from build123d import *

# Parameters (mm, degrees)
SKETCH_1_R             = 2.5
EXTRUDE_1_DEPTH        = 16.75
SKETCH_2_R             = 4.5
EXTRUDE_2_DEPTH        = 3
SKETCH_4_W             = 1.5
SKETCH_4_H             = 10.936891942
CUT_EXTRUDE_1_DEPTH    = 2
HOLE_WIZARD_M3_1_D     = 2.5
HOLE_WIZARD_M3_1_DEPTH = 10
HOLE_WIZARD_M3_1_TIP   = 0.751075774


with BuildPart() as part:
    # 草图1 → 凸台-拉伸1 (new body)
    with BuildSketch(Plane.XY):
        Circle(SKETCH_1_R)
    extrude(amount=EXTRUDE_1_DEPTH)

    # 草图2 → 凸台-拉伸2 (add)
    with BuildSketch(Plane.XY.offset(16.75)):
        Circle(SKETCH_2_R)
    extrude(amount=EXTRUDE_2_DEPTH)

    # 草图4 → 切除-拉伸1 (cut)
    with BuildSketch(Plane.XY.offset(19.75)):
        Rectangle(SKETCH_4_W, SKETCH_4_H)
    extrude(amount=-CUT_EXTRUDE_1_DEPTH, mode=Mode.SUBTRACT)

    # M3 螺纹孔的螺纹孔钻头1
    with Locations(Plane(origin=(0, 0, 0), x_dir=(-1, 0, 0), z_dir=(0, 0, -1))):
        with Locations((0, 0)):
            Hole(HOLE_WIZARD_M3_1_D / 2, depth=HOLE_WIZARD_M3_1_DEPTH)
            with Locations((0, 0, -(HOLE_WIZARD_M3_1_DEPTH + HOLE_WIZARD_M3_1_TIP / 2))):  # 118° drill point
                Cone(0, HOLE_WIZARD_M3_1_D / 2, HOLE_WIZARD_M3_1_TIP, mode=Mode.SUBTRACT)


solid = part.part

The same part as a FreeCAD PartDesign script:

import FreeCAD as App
import Part
import Sketcher
from FreeCAD import Vector
Q = App.Units.Quantity

doc = App.newDocument("Part")
body = doc.addObject("PartDesign::Body", "Body")

# Sketch on XY plane
sketch1 = body.newObject("Sketcher::SketchObject", "Sketch")
sketch1.AttachmentSupport = (doc.getObject("XY_Plane"), [""])
sketch1.MapMode = "FlatFace"
sketch1.addGeometry(Part.Circle(Vector(0, 0, 0), Vector(0, 0, 1), 2.5), False)
sketch1.addConstraint([
    Sketcher.Constraint("Coincident", 0, 3, -1, 1),
    Sketcher.Constraint("Diameter", 0, Q("5 mm")),
])
pad1 = body.newObject("PartDesign::Pad", "Pad")
pad1.Profile = sketch1
pad1.Length = 16.75

# Sketch on XY plane
sketch2 = body.newObject("Sketcher::SketchObject", "Sketch001")
sketch2.AttachmentSupport = (doc.getObject("XY_Plane"), [""])
sketch2.MapMode = "FlatFace"
sketch2.AttachmentOffset = App.Placement(Vector(0, 0, 16.75), App.Rotation())
sketch2.addGeometry(Part.Circle(Vector(0, 0, 0), Vector(0, 0, 1), 4.5), False)
sketch2.addConstraint([
    Sketcher.Constraint("Coincident", 0, 3, -1, 1),
    Sketcher.Constraint("Diameter", 0, Q("9 mm")),
])
pad2 = body.newObject("PartDesign::Pad", "Pad001")
pad2.Profile = sketch2
pad2.Length = 3

# Sketch on XY plane
sketch3 = body.newObject("Sketcher::SketchObject", "Sketch002")
sketch3.AttachmentSupport = (doc.getObject("XY_Plane"), [""])
sketch3.MapMode = "FlatFace"
sketch3.AttachmentOffset = App.Placement(Vector(0, 0, 19.75), App.Rotation())
sketch3.addGeometry([
    Part.LineSegment(Vector(-0.75, 5.468446, 0), Vector(-0.75, -5.468446, 0)),
    Part.LineSegment(Vector(-0.75, -5.468446, 0), Vector(0.75, -5.468446, 0)),
    Part.LineSegment(Vector(0.75, -5.468446, 0), Vector(0.75, 5.468446, 0)),
    Part.LineSegment(Vector(0.75, 5.468446, 0), Vector(-0.75, 5.468446, 0)),
], False)
sketch3.addConstraint([
    Sketcher.Constraint("Coincident", 0, 2, 1, 1),
    Sketcher.Constraint("Coincident", 1, 2, 2, 1),
    Sketcher.Constraint("Coincident", 2, 2, 3, 1),
    Sketcher.Constraint("Coincident", 3, 2, 0, 1),
    Sketcher.Constraint("Vertical", 0),
    Sketcher.Constraint("Horizontal", 1),
    Sketcher.Constraint("Vertical", 2),
    Sketcher.Constraint("Horizontal", 3),
    Sketcher.Constraint("Symmetric", 0, 2, 2, 2, -1, 1),
    Sketcher.Constraint("DistanceX", 1, 1, 1, 2, Q("1.5 mm")),
    Sketcher.Constraint("DistanceY", 0, 2, 0, 1, Q("10.936892 mm")),
])
pocket1 = body.newObject("PartDesign::Pocket", "Pocket")
pocket1.Profile = sketch3
pocket1.Length = 2

# Sketch on XY plane
sketch4 = body.newObject("Sketcher::SketchObject", "Sketch003")
sketch4.AttachmentSupport = (doc.getObject("XY_Plane"), [""])
sketch4.MapMode = "FlatFace"
sketch4.addGeometry(Part.Circle(Vector(0, 0, 0), Vector(0, 0, 1), 1.25), False)
sketch4.addConstraint([
    Sketcher.Constraint("Coincident", 0, 3, -1, 1),
    Sketcher.Constraint("Diameter", 0, Q("2.5 mm")),
])
doc.recompute()
hole = body.newObject("PartDesign::Hole", "Hole")
hole.Profile = sketch4
hole.ThreadType = "None"
hole.Diameter = 2.5
hole.DepthType = "Dimension"
hole.Depth = 10
hole.DrillPoint = "Angled"
hole.DrillPointAngle = 118
hole.Reversed = True

doc.recompute()
